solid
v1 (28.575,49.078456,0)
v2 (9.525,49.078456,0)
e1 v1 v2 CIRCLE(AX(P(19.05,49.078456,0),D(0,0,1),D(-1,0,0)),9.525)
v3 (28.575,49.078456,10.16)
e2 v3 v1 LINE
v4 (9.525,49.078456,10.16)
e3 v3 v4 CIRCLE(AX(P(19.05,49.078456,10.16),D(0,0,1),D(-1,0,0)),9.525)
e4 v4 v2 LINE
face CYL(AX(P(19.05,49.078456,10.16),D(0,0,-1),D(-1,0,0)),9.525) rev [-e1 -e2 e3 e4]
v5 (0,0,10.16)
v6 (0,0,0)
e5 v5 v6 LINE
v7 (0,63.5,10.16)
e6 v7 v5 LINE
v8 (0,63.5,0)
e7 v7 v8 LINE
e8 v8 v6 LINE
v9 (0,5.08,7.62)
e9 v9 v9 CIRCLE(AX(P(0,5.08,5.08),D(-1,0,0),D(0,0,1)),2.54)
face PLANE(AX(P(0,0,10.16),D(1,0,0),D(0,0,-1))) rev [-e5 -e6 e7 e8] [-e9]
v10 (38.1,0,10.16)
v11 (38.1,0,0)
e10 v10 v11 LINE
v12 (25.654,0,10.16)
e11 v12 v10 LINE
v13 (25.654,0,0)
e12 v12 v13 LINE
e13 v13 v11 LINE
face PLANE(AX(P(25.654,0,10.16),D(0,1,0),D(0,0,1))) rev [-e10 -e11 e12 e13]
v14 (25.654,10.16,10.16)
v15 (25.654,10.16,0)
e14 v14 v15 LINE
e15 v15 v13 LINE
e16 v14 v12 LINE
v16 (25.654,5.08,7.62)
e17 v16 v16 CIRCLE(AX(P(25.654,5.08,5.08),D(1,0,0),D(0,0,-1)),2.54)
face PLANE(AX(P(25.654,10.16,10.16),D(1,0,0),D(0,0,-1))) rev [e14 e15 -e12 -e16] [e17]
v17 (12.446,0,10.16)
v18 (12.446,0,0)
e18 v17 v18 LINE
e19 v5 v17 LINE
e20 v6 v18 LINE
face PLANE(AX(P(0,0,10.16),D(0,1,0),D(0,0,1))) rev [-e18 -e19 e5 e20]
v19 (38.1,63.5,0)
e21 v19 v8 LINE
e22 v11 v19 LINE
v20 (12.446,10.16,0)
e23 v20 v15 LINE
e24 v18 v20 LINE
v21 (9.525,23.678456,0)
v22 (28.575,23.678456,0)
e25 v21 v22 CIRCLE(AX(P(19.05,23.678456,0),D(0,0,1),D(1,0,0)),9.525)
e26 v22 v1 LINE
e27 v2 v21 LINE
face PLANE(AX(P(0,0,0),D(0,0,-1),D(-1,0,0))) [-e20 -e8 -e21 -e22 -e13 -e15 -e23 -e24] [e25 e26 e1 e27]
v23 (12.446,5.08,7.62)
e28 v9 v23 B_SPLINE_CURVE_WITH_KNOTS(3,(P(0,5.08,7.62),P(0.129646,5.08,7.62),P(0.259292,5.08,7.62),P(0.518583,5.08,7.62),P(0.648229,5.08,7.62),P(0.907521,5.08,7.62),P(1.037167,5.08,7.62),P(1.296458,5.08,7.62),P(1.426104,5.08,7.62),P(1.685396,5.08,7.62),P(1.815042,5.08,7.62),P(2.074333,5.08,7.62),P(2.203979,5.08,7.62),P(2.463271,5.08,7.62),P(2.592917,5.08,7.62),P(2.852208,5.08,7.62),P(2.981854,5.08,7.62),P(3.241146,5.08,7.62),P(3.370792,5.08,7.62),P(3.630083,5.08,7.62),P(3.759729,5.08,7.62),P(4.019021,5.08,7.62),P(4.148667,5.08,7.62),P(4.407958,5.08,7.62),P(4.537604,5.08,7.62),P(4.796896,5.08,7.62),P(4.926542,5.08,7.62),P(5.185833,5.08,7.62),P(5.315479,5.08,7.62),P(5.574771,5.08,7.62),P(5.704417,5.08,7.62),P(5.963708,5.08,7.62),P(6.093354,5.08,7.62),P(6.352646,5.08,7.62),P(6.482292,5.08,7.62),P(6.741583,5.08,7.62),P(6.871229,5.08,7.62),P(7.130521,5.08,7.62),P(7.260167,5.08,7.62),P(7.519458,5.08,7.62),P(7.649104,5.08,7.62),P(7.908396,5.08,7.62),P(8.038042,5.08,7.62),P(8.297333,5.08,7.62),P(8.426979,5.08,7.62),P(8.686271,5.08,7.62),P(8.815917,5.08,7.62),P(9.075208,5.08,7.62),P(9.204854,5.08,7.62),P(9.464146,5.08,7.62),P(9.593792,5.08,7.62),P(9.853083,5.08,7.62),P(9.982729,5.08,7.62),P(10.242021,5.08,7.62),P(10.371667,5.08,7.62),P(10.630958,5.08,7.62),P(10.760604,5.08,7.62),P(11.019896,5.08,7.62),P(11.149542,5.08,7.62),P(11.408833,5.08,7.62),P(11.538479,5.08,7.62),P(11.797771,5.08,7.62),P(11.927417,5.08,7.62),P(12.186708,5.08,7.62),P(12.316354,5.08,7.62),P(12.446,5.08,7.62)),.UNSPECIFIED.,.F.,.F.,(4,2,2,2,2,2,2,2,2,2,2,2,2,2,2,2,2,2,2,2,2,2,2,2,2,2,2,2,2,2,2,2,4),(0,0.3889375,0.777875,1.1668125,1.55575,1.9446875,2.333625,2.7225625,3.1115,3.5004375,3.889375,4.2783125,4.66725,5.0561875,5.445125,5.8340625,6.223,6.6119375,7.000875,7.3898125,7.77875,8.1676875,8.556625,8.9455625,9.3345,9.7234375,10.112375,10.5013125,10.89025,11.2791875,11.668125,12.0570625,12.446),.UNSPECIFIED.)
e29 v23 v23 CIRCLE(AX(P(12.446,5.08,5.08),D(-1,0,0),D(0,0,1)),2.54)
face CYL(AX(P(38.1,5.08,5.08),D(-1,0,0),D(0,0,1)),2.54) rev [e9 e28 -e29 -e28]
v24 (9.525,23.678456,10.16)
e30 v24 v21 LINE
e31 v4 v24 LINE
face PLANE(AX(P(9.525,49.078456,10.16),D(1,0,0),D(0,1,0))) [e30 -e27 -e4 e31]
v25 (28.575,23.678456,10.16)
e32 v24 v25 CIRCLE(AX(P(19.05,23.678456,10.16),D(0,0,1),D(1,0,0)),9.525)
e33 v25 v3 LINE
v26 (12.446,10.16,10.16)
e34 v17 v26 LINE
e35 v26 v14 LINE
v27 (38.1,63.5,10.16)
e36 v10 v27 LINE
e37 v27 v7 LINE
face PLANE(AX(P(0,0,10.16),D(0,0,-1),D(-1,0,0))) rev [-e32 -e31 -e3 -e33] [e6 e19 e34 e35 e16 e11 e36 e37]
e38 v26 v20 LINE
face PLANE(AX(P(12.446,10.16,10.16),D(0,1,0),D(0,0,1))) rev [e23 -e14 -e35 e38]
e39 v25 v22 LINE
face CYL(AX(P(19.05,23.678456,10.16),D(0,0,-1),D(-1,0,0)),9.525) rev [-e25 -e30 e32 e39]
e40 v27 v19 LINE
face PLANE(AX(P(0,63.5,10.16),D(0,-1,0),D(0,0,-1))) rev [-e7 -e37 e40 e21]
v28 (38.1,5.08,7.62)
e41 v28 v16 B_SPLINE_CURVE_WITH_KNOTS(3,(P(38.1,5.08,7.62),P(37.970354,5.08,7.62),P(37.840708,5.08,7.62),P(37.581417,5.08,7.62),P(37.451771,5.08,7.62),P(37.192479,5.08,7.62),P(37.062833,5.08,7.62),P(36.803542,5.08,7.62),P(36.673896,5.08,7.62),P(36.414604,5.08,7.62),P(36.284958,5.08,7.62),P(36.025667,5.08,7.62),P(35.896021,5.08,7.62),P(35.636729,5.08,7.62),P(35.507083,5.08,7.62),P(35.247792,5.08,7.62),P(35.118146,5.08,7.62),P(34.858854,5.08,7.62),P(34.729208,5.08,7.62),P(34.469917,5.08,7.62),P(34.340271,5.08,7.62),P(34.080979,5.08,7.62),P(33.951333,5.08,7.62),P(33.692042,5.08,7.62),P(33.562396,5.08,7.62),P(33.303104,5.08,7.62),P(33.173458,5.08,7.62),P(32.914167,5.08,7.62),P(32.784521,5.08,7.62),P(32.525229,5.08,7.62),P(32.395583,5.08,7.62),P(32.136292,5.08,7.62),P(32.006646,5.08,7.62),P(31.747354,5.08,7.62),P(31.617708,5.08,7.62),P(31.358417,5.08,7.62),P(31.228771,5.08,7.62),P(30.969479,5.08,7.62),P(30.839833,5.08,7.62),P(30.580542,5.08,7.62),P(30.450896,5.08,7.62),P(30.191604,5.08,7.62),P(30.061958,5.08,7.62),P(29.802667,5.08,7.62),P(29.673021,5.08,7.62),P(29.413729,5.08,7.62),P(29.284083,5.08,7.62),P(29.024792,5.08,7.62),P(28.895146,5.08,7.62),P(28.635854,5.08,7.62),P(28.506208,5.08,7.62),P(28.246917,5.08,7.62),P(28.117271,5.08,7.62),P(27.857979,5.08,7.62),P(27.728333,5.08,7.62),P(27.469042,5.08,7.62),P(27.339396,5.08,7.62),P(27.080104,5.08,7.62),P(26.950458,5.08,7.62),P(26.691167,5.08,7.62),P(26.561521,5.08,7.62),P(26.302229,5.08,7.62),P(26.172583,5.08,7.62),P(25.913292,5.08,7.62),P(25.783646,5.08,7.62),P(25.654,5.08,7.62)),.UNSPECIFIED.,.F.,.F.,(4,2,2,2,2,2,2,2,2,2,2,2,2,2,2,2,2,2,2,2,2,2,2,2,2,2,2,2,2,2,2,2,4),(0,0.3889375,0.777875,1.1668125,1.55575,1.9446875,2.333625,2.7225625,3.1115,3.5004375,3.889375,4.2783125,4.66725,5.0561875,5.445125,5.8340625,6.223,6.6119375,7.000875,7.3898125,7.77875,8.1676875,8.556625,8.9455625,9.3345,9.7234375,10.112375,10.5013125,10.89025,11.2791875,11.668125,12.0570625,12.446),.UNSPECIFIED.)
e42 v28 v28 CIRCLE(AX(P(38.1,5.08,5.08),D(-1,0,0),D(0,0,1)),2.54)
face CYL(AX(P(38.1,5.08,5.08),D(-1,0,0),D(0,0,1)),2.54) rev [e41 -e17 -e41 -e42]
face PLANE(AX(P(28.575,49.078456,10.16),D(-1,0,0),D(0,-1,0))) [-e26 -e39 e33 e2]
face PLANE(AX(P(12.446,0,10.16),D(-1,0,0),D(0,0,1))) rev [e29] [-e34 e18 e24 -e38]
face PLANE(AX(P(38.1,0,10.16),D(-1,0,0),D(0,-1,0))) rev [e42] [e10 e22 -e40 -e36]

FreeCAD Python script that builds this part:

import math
import FreeCAD as App
import Part
import Sketcher

V = App.Vector
Q = App.Units.Quantity


def add_polygon(sketch, points):
    """Adds a closed chain of lines whose ends are joined by coincident constraints."""
    first, n = sketch.GeometryCount, len(points)
    for a, b in zip(points, points[1:] + points[:1]):
        sketch.addGeometry(Part.LineSegment(App.Vector(*a, 0), App.Vector(*b, 0)), False)
    for i in range(n):
        sketch.addConstraint(Sketcher.Constraint("Coincident", first + i, 2, first + (i + 1) % n, 1))

doc = App.newDocument("Part")
body = doc.addObject("PartDesign::Body", "Body")

# Sketch on XY plane
sketch1 = body.newObject("Sketcher::SketchObject", "Sketch")
sketch1.AttachmentSupport = (doc.getObject("XY_Plane"), [""])
sketch1.MapMode = "FlatFace"
add_polygon(sketch1, [(0, 0), (12, 0), (12, 10), (26, 10), (26, 0), (38, 0), (38, 64), (0, 64)])  # lines 0-7
sketch1.addGeometry(Part.LineSegment(V(10, 24, 0), V(10, 49, 0)), False)  # 8
sketch1.addGeometry(Part.ArcOfCircle(Part.Circle(V(19, 49, 0), V(0, 0, 1), 10), math.radians(0), math.radians(180)), False)  # 9
sketch1.addGeometry(Part.LineSegment(V(29, 49, 0), V(29, 24, 0)), False)  # 10
sketch1.addGeometry(Part.ArcOfCircle(Part.Circle(V(19, 24, 0), V(0, 0, 1), 10), math.radians(180), math.radians(360)), False)  # 11
sketch1.addConstraint([
    Sketcher.Constraint("Tangent", 8, 2, 9, 2),
    Sketcher.Constraint("Tangent", 9, 1, 10, 1),
    Sketcher.Constraint("Tangent", 10, 2, 11, 2),
    Sketcher.Constraint("Tangent", 11, 1, 8, 1),
    Sketcher.Constraint("Horizontal", 0),
    Sketcher.Constraint("Vertical", 1),
    Sketcher.Constraint("Horizontal", 2),
    Sketcher.Constraint("Vertical", 3),
    Sketcher.Constraint("Horizontal", 4),
    Sketcher.Constraint("Vertical", 5),
    Sketcher.Constraint("Horizontal", 6),
    Sketcher.Constraint("Vertical", 7),
    Sketcher.Constraint("Vertical", 8),
    Sketcher.Constraint("Vertical", 10),
    Sketcher.Constraint("Coincident", 7, 2, -1, 1),
    Sketcher.Constraint("PointOnObject", 3, 2, -1),
    Sketcher.Constraint("Equal", 0, 4),
    Sketcher.Constraint("DistanceY", 8, 1, 8, 2, Q("1 in")),
    Sketcher.Constraint("DistanceX", 6, 2, 6, 1, Q("1.5 in")),
    Sketcher.Constraint("DistanceY", 1, 1, 1, 2, Q("0.4 in")),
    Sketcher.Constraint("DistanceY", 5, 1, 5, 2, Q("2.5 in")),
    Sketcher.Constraint("Radius", 9, Q("0.375 in")),
    Sketcher.Constraint("DistanceX", 0, 1, 0, 2, Q("0.49 in")),
    Sketcher.Constraint("DistanceX", -1, 1, 9, 3, Q("0.75 in")),
    Sketcher.Constraint("DistanceY", -1, 1, 9, 3, Q("49.078456 mm")),
])
pad1 = body.newObject("PartDesign::Pad", "Pad")
pad1.Profile = sketch1
pad1.Length = Q("0.4 in")

# Sketch on YZ plane
sketch2 = body.newObject("Sketcher::SketchObject", "Sketch001")
sketch2.AttachmentSupport = (doc.getObject("YZ_Plane"), [""])
sketch2.MapMode = "FlatFace"
sketch2.addGeometry(Part.Circle(V(5.1, 5.1, 0), V(0, 0, 1), 2.5), False)
sketch2.addConstraint([
    Sketcher.Constraint("Diameter", 0, Q("0.2 in")),
    Sketcher.Constraint("DistanceX", -1, 1, 0, 3, Q("0.2 in")),
    Sketcher.Constraint("DistanceY", -1, 1, 0, 3, Q("0.2 in")),
])
pocket1 = body.newObject("PartDesign::Pocket", "Pocket")
pocket1.Profile = sketch2
pocket1.Length = Q("1.5 in")
pocket1.Reversed = True

doc.recompute()
